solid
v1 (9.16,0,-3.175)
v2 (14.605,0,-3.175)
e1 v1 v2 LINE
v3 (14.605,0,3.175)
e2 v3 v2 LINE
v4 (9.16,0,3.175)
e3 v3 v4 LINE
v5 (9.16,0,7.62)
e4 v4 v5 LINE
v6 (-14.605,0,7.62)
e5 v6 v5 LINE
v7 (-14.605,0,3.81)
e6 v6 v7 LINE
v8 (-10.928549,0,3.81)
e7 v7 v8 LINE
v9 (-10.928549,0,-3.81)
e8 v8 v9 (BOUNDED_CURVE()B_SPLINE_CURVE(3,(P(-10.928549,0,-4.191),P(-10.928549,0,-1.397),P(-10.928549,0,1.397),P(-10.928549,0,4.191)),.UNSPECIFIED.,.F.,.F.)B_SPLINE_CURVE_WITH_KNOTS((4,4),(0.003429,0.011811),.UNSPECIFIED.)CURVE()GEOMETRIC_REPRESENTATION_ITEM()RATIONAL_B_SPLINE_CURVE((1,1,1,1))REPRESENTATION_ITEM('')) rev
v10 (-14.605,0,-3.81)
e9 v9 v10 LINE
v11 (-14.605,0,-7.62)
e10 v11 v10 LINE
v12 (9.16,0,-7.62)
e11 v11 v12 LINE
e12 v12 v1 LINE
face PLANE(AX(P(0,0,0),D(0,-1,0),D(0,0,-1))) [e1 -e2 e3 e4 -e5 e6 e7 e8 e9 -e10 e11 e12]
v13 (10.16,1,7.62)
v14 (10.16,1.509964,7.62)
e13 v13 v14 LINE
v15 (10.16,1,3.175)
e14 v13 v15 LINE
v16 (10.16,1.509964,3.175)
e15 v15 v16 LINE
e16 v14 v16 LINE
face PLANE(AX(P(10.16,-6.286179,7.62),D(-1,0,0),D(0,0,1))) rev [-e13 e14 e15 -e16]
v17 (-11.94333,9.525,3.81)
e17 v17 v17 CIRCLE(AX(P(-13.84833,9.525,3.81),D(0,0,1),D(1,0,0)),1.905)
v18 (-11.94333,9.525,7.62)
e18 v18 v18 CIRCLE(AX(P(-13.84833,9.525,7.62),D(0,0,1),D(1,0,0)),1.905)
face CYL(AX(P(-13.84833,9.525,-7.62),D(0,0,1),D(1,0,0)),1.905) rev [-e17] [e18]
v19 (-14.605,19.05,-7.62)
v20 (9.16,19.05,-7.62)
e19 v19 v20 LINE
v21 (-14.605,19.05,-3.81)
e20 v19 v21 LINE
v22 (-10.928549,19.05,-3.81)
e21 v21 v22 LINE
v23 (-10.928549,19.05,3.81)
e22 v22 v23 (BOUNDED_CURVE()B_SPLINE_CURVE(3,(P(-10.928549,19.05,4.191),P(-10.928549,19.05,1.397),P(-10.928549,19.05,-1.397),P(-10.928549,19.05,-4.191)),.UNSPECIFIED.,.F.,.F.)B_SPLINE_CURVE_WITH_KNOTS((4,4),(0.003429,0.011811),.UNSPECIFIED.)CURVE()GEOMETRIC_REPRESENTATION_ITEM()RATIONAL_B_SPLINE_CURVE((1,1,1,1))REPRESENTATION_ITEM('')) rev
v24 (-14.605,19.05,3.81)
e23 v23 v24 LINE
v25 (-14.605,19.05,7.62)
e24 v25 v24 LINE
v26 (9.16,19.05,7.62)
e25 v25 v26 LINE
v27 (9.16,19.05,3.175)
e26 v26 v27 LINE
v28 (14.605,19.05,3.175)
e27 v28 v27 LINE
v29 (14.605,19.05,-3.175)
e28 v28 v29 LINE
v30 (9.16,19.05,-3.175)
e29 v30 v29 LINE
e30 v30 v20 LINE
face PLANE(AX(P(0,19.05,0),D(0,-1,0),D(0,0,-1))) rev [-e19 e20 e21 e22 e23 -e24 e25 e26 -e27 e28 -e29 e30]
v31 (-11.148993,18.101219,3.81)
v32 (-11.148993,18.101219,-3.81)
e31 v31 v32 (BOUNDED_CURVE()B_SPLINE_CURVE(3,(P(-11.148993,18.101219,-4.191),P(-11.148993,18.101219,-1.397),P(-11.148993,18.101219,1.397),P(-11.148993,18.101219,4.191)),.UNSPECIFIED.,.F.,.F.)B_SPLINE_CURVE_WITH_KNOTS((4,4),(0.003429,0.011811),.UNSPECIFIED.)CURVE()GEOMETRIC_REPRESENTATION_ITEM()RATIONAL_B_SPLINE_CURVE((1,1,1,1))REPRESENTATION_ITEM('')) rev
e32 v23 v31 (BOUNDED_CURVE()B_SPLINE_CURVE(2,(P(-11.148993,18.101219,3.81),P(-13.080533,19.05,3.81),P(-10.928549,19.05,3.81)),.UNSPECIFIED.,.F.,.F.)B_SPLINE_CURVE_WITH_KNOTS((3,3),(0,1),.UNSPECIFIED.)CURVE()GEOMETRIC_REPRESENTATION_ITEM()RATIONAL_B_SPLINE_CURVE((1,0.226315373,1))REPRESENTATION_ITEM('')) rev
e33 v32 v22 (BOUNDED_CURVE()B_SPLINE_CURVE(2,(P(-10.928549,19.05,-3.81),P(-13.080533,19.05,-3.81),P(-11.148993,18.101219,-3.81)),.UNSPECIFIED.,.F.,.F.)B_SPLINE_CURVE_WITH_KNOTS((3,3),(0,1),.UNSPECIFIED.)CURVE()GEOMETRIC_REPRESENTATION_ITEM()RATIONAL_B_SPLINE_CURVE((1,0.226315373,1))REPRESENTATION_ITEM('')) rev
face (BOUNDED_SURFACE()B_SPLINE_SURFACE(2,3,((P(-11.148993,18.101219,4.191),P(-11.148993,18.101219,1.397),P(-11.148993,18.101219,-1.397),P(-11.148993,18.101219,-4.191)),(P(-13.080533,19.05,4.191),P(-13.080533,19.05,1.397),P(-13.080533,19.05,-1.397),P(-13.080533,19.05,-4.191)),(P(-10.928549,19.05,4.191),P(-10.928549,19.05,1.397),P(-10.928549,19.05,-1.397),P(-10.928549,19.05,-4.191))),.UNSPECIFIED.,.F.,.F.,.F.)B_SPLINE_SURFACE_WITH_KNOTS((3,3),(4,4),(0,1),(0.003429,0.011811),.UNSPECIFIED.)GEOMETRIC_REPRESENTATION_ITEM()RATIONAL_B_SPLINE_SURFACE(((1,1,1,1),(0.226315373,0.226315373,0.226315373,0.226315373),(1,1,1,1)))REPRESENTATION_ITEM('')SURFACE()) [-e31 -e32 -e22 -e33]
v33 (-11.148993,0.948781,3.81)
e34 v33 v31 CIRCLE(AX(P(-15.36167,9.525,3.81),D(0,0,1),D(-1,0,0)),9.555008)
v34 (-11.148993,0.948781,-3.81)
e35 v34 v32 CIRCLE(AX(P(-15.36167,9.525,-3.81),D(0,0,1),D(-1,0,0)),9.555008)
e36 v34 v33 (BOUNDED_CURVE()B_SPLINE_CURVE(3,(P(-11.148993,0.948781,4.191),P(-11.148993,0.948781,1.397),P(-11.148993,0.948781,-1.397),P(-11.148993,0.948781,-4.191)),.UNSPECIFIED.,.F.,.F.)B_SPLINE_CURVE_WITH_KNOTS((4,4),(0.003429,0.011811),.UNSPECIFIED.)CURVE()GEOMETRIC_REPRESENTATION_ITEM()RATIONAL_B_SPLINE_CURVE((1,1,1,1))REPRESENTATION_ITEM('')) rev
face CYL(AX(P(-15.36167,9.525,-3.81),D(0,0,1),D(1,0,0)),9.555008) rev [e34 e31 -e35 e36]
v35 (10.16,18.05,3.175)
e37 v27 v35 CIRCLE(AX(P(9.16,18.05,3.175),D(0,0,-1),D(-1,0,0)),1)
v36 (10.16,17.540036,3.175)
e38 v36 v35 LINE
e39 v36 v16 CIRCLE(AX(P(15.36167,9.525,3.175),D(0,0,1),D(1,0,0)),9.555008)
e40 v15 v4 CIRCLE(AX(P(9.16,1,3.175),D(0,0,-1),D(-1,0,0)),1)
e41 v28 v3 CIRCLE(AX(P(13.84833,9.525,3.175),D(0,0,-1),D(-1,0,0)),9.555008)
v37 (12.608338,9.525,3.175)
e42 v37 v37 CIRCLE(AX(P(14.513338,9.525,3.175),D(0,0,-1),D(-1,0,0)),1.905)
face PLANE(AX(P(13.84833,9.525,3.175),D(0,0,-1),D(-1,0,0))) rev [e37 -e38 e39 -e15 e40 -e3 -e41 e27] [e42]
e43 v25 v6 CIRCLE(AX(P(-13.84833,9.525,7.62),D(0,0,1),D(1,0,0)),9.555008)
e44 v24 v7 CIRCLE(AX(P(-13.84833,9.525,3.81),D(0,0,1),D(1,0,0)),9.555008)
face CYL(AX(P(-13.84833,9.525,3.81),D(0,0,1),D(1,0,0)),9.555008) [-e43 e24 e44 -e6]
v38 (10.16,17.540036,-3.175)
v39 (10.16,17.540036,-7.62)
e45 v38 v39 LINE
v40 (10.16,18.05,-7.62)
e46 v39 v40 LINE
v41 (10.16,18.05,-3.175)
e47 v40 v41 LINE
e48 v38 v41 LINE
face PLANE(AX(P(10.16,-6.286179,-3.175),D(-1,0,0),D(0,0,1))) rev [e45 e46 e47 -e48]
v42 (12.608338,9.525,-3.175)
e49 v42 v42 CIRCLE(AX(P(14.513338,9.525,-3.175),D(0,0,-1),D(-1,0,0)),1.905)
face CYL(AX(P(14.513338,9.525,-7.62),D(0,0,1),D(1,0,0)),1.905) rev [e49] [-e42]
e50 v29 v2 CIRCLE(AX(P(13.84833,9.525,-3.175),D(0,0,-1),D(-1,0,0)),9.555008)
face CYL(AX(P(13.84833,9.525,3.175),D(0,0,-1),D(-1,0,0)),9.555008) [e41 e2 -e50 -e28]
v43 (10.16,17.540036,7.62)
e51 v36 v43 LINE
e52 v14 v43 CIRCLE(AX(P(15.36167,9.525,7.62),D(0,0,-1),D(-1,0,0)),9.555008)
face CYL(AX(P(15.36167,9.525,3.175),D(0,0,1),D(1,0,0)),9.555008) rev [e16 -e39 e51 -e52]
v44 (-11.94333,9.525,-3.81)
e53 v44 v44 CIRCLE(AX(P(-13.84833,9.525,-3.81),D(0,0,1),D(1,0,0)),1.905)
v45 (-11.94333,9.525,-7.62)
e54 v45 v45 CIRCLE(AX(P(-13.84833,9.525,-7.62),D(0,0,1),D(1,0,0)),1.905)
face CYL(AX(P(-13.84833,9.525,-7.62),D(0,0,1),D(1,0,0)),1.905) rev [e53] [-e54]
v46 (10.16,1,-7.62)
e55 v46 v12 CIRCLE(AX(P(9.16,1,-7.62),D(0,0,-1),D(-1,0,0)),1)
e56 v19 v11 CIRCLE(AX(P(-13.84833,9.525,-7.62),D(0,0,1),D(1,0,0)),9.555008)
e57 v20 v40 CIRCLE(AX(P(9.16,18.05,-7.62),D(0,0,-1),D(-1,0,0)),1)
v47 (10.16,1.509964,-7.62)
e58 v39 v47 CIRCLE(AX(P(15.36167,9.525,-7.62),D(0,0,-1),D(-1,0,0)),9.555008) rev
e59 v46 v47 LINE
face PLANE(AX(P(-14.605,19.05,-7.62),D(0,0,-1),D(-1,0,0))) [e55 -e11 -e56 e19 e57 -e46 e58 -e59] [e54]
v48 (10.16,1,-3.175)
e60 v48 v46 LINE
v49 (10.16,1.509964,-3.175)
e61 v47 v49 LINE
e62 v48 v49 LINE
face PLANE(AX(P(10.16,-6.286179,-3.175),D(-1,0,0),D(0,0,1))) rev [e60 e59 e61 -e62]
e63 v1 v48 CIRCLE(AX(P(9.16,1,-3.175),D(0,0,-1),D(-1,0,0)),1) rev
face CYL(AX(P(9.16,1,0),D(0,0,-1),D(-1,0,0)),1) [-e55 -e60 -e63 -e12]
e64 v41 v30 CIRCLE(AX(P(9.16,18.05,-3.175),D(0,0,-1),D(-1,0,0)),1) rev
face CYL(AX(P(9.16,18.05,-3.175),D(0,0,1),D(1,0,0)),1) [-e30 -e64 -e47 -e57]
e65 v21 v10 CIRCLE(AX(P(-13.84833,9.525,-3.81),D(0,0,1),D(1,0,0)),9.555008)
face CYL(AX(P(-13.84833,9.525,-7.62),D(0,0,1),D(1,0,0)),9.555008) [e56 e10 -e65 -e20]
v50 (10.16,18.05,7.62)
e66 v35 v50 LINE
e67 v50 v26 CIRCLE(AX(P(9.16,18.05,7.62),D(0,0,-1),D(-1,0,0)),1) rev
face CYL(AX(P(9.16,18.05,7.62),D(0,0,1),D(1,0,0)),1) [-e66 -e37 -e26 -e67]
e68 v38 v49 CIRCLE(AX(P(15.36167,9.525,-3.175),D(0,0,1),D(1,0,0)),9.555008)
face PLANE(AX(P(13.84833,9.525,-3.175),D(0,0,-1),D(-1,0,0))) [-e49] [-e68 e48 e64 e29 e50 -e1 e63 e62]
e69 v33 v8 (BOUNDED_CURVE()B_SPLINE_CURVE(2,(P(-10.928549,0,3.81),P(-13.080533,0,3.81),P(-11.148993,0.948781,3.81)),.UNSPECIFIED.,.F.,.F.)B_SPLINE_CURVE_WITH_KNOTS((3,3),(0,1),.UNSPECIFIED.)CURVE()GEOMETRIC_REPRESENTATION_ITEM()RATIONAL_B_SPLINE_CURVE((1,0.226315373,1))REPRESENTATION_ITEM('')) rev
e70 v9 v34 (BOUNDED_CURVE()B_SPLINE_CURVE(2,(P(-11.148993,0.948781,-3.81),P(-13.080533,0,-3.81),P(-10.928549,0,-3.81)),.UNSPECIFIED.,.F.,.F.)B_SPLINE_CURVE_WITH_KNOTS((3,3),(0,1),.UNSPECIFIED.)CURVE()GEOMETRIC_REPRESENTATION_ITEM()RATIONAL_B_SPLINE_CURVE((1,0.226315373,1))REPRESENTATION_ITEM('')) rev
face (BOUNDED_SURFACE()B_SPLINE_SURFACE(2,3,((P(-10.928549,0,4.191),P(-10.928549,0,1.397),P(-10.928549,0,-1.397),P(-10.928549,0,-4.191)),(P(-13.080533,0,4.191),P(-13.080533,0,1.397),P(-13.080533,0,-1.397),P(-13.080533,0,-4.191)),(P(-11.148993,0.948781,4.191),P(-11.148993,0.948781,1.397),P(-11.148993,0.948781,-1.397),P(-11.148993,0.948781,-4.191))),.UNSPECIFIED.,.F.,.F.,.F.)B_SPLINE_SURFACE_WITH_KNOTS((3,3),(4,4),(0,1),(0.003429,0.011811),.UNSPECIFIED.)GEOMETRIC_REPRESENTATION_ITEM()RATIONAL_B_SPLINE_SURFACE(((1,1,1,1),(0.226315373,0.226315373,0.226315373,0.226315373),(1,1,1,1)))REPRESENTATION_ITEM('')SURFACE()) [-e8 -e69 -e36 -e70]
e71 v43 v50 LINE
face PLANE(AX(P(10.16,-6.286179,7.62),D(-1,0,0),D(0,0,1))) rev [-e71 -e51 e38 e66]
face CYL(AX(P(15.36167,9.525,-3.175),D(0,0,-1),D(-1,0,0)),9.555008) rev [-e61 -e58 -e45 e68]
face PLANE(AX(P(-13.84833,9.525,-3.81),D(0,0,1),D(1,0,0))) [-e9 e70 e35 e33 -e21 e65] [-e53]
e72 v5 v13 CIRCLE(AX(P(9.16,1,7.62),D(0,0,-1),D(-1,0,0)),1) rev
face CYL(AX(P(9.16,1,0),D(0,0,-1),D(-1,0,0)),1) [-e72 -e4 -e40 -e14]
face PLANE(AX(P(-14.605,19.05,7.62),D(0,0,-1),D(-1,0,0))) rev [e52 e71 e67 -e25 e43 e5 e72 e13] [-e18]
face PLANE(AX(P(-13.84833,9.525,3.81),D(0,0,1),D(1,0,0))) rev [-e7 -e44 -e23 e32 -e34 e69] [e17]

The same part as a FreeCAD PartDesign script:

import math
import FreeCAD as App
import Part
import Sketcher
from FreeCAD import Vector
Q = App.Units.Quantity


def edges_at(feature, points):
    """Names of the edges that pass closest to the given points."""
    edges = feature.Shape.Edges
    near = lambda p: min(range(len(edges)), key=lambda i: edges[i].distToShape(Part.Vertex(*p))[0])
    return sorted({f"Edge{near(p) + 1}" for p in points})

doc = App.newDocument("Part")
params = doc.addObject("Spreadsheet::Sheet", "Params")
for row, (alias, value) in enumerate([
    ("sketch1_height", "0.6 in"),
    ("sketch1_width", "1.15 in"),
    ("pad1_length", "0.75 in"),
    ("sketch2_height", "0.75 in"),
    ("pad2_length", "0.25 in"),
    ("sketch3_height", "0.75 in"),
    ("pad3_length", "0.15 in"),
    ("linearpattern_pitch", "0.45 in"),
    ("sketch4_diameter", "0.15 in"),
    ("sketch5_height", "0.75 in"),
    ("pocket2_length", "0.11 in"),
    ("pocket2_length2", "0.125 in"),
    ("sketch6_height", "0.75 in"),
    ("pocket3_length", "0.23 in"),
    ("sketch7_height", "0.75 in"),
    ("pocket4_length", "0.3 in"),
    ("fillet_radius", "0.5 mm"),
    ("sketch8_diameter", "0.15 in"),
    ("sketch9_width", "0.175 in"),
    ("pocket6_length", "0.75 in"),
    ("linearpattern2_pitch", "0.425 in"),
    ("fillet2_radius", "1 mm"),
], start=1):
    params.set(f"A{row}", alias)
    params.set(f"B{row}", "=" + value)
    params.setAlias(f"B{row}", alias)

body = doc.addObject("PartDesign::Body", "Body")

# Sketch on XZ plane
sketch1 = body.newObject("Sketcher::SketchObject", "Sketch")
sketch1.AttachmentSupport = (doc.getObject("XZ_Plane"), [""])
sketch1.MapMode = "FlatFace"
sketch1.addGeometry(Part.LineSegment(Vector(-14.605, -7.62, 0), Vector(-14.605, 7.62, 0)), False)
sketch1.addGeometry(Part.LineSegment(Vector(-14.605, 7.62, 0), Vector(14.605, 7.62, 0)), False)
sketch1.addGeometry(Part.LineSegment(Vector(14.605, 7.62, 0), Vector(14.605, -7.62, 0)), False)
sketch1.addGeometry(Part.LineSegment(Vector(14.605, -7.62, 0), Vector(-14.605, -7.62, 0)), False)
sketch1.addConstraint(Sketcher.Constraint("Coincident", 0, 2, 1, 1))
sketch1.addConstraint(Sketcher.Constraint("Coincident", 1, 2, 2, 1))
sketch1.addConstraint(Sketcher.Constraint("Coincident", 2, 2, 3, 1))
sketch1.addConstraint(Sketcher.Constraint("Coincident", 3, 2, 0, 1))
sketch1.addConstraint(Sketcher.Constraint("Vertical", 0))
sketch1.addConstraint(Sketcher.Constraint("Horizontal", 1))
sketch1.addConstraint(Sketcher.Constraint("Vertical", 2))
sketch1.addConstraint(Sketcher.Constraint("Horizontal", 3))
sketch1.addConstraint(Sketcher.Constraint("Symmetric", 0, 2, 2, 2, -1, 1))
sketch1.addConstraint(Sketcher.Constraint("DistanceY", 0, 1, 0, 2, Q("0.6 in")))
sketch1.addConstraint(Sketcher.Constraint("DistanceX", 1, 1, 1, 2, Q("1.15 in")))
sketch1.setExpression("Constraints[9]", "Params.sketch1_height")
sketch1.setExpression("Constraints[10]", "Params.sketch1_width")
pad1 = body.newObject("PartDesign::Pad", "Pad")
pad1.Profile = sketch1
pad1.setExpression("Length", "Params.pad1_length")
pad1.Reversed = True

# Sketch on XY plane
sketch2 = body.newObject("Sketcher::SketchObject", "Sketch001")
sketch2.AttachmentSupport = (doc.getObject("XY_Plane"), [""])
sketch2.MapMode = "FlatFace"
sketch2.addGeometry(Part.LineSegment(Vector(14.605, 19.05, 0), Vector(14.605, 0, 0)), False)
sketch2.addGeometry(Part.ArcOfCircle(Part.Circle(Vector(13.84833, 9.525, 0), Vector(0, 0, 1), 9.555008), math.radians(-85.457938), math.radians(85.457938)), False)
sketch2.addConstraint(Sketcher.Constraint("Coincident", 0, 1, 1, 2))
sketch2.addConstraint(Sketcher.Constraint("Coincident", 1, 1, 0, 2))
sketch2.addConstraint(Sketcher.Constraint("Vertical", 0))
sketch2.addConstraint(Sketcher.Constraint("PointOnObject", 1, 1, -1))
sketch2.addConstraint(Sketcher.Constraint("DistanceY", 0, 2, 0, 1, Q("0.75 in")))
sketch2.addConstraint(Sketcher.Constraint("DistanceX", -1, 1, 0, 1, Q("0.575 in")))
sketch2.addConstraint(Sketcher.Constraint("Radius", 1, Q("9.555008 mm")))
sketch2.setExpression("Constraints[4]", "Params.sketch2_height")
pad2 = body.newObject("PartDesign::Pad", "Pad001")
pad2.Profile = sketch2
pad2.setExpression("Length", "Params.pad2_length")
pad2.Midplane = True

# Sketch on XY plane
sketch3 = body.newObject("Sketcher::SketchObject", "Sketch002")
sketch3.AttachmentSupport = (doc.getObject("XY_Plane"), [""])
sketch3.MapMode = "FlatFace"
sketch3.AttachmentOffset = App.Placement(Vector(0, 0, 0.3 * 25.4), App.Rotation())
sketch3.addGeometry(Part.LineSegment(Vector(-14.605, 0, 0), Vector(-14.605, 19.05, 0)), False)
sketch3.addGeometry(Part.ArcOfCircle(Part.Circle(Vector(-13.84833, 9.525, 0), Vector(0, 0, 1), 9.555008), math.radians(94.542062), math.radians(265.457938)), False)
sketch3.addConstraint(Sketcher.Constraint("Coincident", 0, 1, 1, 2))
sketch3.addConstraint(Sketcher.Constraint("Coincident", 1, 1, 0, 2))
sketch3.addConstraint(Sketcher.Constraint("Vertical", 0))
sketch3.addConstraint(Sketcher.Constraint("PointOnObject", 0, 1, -1))
sketch3.addConstraint(Sketcher.Constraint("DistanceY", 0, 1, 0, 2, Q("0.75 in")))
sketch3.addConstraint(Sketcher.Constraint("DistanceX", 0, 1, -1, 1, Q("0.575 in")))
sketch3.addConstraint(Sketcher.Constraint("Radius", 1, Q("9.555008 mm")))
sketch3.setExpression("Constraints[4]", "Params.sketch3_height")
pad3 = body.newObject("PartDesign::Pad", "Pad002")
pad3.Profile = sketch3
pad3.setExpression("Length", "Params.pad3_length")
pad3.Reversed = True
doc.recompute()

linearpattern = body.newObject("PartDesign::LinearPattern", "LinearPattern")
linearpattern.Originals = [pad3]
linearpattern.Direction = (doc.getObject("Z_Axis"), [""])
linearpattern.Mode = "offset"
linearpattern.setExpression("Offset", "Params.linearpattern_pitch")
linearpattern.Occurrences = 2
linearpattern.Reversed = True
body.Tip = linearpattern

# Sketch on XY plane
sketch4 = body.newObject("Sketcher::SketchObject", "Sketch003")
sketch4.AttachmentSupport = (doc.getObject("XY_Plane"), [""])
sketch4.MapMode = "FlatFace"
sketch4.addGeometry(Part.Circle(Vector(-13.84833, 9.525, 0), Vector(0, 0, 1), 1.905), False)
sketch4.addConstraint(Sketcher.Constraint("Diameter", 0, Q("0.15 in")))
sketch4.addConstraint(Sketcher.Constraint("DistanceY", -1, 1, 0, 3, Q("0.375 in")))
sketch4.addConstraint(Sketcher.Constraint("DistanceX", 0, 3, -1, 1, Q("13.84833 mm")))
sketch4.setExpression("Constraints[0]", "Params.sketch4_diameter")
pocket1 = body.newObject("PartDesign::Pocket", "Pocket")
pocket1.Profile = sketch4
pocket1.Type = "ThroughAll"
pocket1.Midplane = True

# Sketch on XY plane
sketch5 = body.newObject("Sketcher::SketchObject", "Sketch004")
sketch5.AttachmentSupport = (doc.getObject("XY_Plane"), [""])
sketch5.MapMode = "FlatFace"
sketch5.AttachmentOffset = App.Placement(Vector(0, 0, 0.25 * 25.4), App.Rotation())
sketch5.addGeometry(Part.LineSegment(Vector(14.605, 0, 0), Vector(14.605, 19.05, 0)), False)
sketch5.addGeometry(Part.ArcOfCircle(Part.Circle(Vector(15.36167, 9.525, 0), Vector(0, 0, 1), 9.555008), math.radians(94.542062), math.radians(265.457938)), False)
sketch5.addConstraint(Sketcher.Constraint("Coincident", 0, 1, 1, 2))
sketch5.addConstraint(Sketcher.Constraint("Coincident", 1, 1, 0, 2))
sketch5.addConstraint(Sketcher.Constraint("Vertical", 0))
sketch5.addConstraint(Sketcher.Constraint("PointOnObject", 0, 1, -1))
sketch5.addConstraint(Sketcher.Constraint("DistanceY", 0, 1, 0, 2, Q("0.75 in")))
sketch5.addConstraint(Sketcher.Constraint("DistanceX", -1, 1, 0, 1, Q("0.575 in")))
sketch5.addConstraint(Sketcher.Constraint("Radius", 1, Q("9.555008 mm")))
sketch5.setExpression("Constraints[4]", "Params.sketch5_height")
pocket2 = body.newObject("PartDesign::Pocket", "Pocket001")
pocket2.Profile = sketch5
pocket2.Type = "TwoLengths"
pocket2.setExpression("Length", "Params.pocket2_length")
pocket2.setExpression("Length2", "Params.pocket2_length2")
pocket2.Reversed = True

# Sketch on XY plane
sketch6 = body.newObject("Sketcher::SketchObject", "Sketch005")
sketch6.AttachmentSupport = (doc.getObject("XY_Plane"), [""])
sketch6.MapMode = "FlatFace"
sketch6.AttachmentOffset = App.Placement(Vector(0, 0, -0.355 * 25.4), App.Rotation())
sketch6.addGeometry(Part.LineSegment(Vector(14.605, 0, 0), Vector(14.605, 19.05, 0)), False)
sketch6.addGeometry(Part.ArcOfCircle(Part.Circle(Vector(15.36167, 9.525, 0), Vector(0, 0, 1), 9.555008), math.radians(94.542062), math.radians(265.457938)), False)
sketch6.addConstraint(Sketcher.Constraint("Coincident", 0, 1, 1, 2))
sketch6.addConstraint(Sketcher.Constraint("Coincident", 1, 1, 0, 2))
sketch6.addConstraint(Sketcher.Constraint("Vertical", 0))
sketch6.addConstraint(Sketcher.Constraint("PointOnObject", 0, 1, -1))
sketch6.addConstraint(Sketcher.Constraint("DistanceY", 0, 1, 0, 2, Q("0.75 in")))
sketch6.addConstraint(Sketcher.Constraint("DistanceX", -1, 1, 0, 1, Q("0.575 in")))
sketch6.addConstraint(Sketcher.Constraint("Radius", 1, Q("9.555008 mm")))
sketch6.setExpression("Constraints[4]", "Params.sketch6_height")
pocket3 = body.newObject("PartDesign::Pocket", "Pocket002")
pocket3.Profile = sketch6
pocket3.setExpression("Length", "Params.pocket3_length")
pocket3.Reversed = True

# Sketch on XY plane
sketch7 = body.newObject("Sketcher::SketchObject", "Sketch006")
sketch7.AttachmentSupport = (doc.getObject("XY_Plane"), [""])
sketch7.MapMode = "FlatFace"
sketch7.addGeometry(Part.LineSegment(Vector(-14.605, 19.05, 0), Vector(-14.605, 0, 0)), False)
sketch7.addGeometry(Part.ArcOfCircle(Part.Circle(Vector(-15.36167, 9.525, 0), Vector(0, 0, 1), 9.555008), math.radians(-85.457938), math.radians(85.457938)), False)
sketch7.addConstraint(Sketcher.Constraint("Coincident", 0, 1, 1, 2))
sketch7.addConstraint(Sketcher.Constraint("Coincident", 1, 1, 0, 2))
sketch7.addConstraint(Sketcher.Constraint("Vertical", 0))
sketch7.addConstraint(Sketcher.Constraint("PointOnObject", 1, 1, -1))
sketch7.addConstraint(Sketcher.Constraint("DistanceY", 0, 2, 0, 1, Q("0.75 in")))
sketch7.addConstraint(Sketcher.Constraint("DistanceX", 0, 1, -1, 1, Q("0.575 in")))
sketch7.addConstraint(Sketcher.Constraint("Radius", 1, Q("9.555008 mm")))
sketch7.setExpression("Constraints[4]", "Params.sketch7_height")
pocket4 = body.newObject("PartDesign::Pocket", "Pocket003")
pocket4.Profile = sketch7
pocket4.setExpression("Length", "Params.pocket4_length")
pocket4.Midplane = True
doc.recompute()

fillet = body.newObject("PartDesign::Fillet", "Fillet")
fillet.Base = (pocket4, edges_at(pocket4, [(-14.605, 0, 0), (-14.605, 19.05, 0)]))
fillet.setExpression("Radius", "Params.fillet_radius")

# Sketch on XY plane
sketch8 = body.newObject("Sketcher::SketchObject", "Sketch007")
sketch8.AttachmentSupport = (doc.getObject("XY_Plane"), [""])
sketch8.MapMode = "FlatFace"
sketch8.AttachmentOffset = App.Placement(Vector(0, 0, 0.25 * 25.4), App.Rotation())
sketch8.addGeometry(Part.Circle(Vector(14.513338, 9.525, 0), Vector(0, 0, 1), 1.905), False)
sketch8.addConstraint(Sketcher.Constraint("Diameter", 0, Q("0.15 in")))
sketch8.addConstraint(Sketcher.Constraint("DistanceY", -1, 1, 0, 3, Q("0.375 in")))
sketch8.addConstraint(Sketcher.Constraint("DistanceX", -1, 1, 0, 3, Q("14.513338 mm")))
sketch8.setExpression("Constraints[0]", "Params.sketch8_diameter")
pocket5 = body.newObject("PartDesign::Pocket", "Pocket004")
pocket5.Profile = sketch8
pocket5.Type = "ThroughAll"
pocket5.Midplane = True

# Sketch on XZ plane
sketch9 = body.newObject("Sketcher::SketchObject", "Sketch008")
sketch9.AttachmentSupport = (doc.getObject("XZ_Plane"), [""])
sketch9.MapMode = "FlatFace"
sketch9.AttachmentOffset = App.Placement(Vector(0, 0, -0.75 * 25.4), App.Rotation())
sketch9.addGeometry(Part.LineSegment(Vector(10.16, -7.62, 0), Vector(10.16, -3.175, 0)), False)
sketch9.addGeometry(Part.LineSegment(Vector(10.16, -3.175, 0), Vector(14.605, -3.175, 0)), False)
sketch9.addGeometry(Part.LineSegment(Vector(14.605, -3.175, 0), Vector(14.605, -7.62, 0)), False)
sketch9.addGeometry(Part.LineSegment(Vector(14.605, -7.62, 0), Vector(10.16, -7.62, 0)), False)
sketch9.addConstraint(Sketcher.Constraint("Coincident", 0, 2, 1, 1))
sketch9.addConstraint(Sketcher.Constraint("Coincident", 1, 2, 2, 1))
sketch9.addConstraint(Sketcher.Constraint("Coincident", 2, 2, 3, 1))
sketch9.addConstraint(Sketcher.Constraint("Coincident", 3, 2, 0, 1))
sketch9.addConstraint(Sketcher.Constraint("Vertical", 0))
sketch9.addConstraint(Sketcher.Constraint("Horizontal", 1))
sketch9.addConstraint(Sketcher.Constraint("Vertical", 2))
sketch9.addConstraint(Sketcher.Constraint("Horizontal", 3))
sketch9.addConstraint(Sketcher.Constraint("Equal", 3, 0))
sketch9.addConstraint(Sketcher.Constraint("DistanceX", -1, 1, 0, 2, Q("0.4 in")))
sketch9.addConstraint(Sketcher.Constraint("DistanceY", 2, 2, -1, 1, Q("0.3 in")))
sketch9.addConstraint(Sketcher.Constraint("DistanceX", 1, 1, 1, 2, Q("0.175 in")))
sketch9.setExpression("Constraints[11]", "Params.sketch9_width")
pocket6 = body.newObject("PartDesign::Pocket", "Pocket005")
pocket6.Profile = sketch9
pocket6.setExpression("Length", "Params.pocket6_length")
pocket6.Reversed = True
doc.recompute()

linearpattern2 = body.newObject("PartDesign::LinearPattern", "LinearPattern001")
linearpattern2.Originals = [pocket6]
linearpattern2.Direction = (doc.getObject("Z_Axis"), [""])
linearpattern2.Mode = "offset"
linearpattern2.setExpression("Offset", "Params.linearpattern2_pitch")
linearpattern2.Occurrences = 2
body.Tip = linearpattern2
doc.recompute()

fillet2 = body.newObject("PartDesign::Fillet", "Fillet001")
fillet2.Base = (linearpattern2, edges_at(linearpattern2, [
    (10.16, 19.05, -5.397),
    (10.16, 0, -5.397),
    (10.16, 0, 5.397),
    (10.16, 19.05, 5.397),
]))
fillet2.setExpression("Radius", "Params.fillet2_radius")

doc.recompute()
